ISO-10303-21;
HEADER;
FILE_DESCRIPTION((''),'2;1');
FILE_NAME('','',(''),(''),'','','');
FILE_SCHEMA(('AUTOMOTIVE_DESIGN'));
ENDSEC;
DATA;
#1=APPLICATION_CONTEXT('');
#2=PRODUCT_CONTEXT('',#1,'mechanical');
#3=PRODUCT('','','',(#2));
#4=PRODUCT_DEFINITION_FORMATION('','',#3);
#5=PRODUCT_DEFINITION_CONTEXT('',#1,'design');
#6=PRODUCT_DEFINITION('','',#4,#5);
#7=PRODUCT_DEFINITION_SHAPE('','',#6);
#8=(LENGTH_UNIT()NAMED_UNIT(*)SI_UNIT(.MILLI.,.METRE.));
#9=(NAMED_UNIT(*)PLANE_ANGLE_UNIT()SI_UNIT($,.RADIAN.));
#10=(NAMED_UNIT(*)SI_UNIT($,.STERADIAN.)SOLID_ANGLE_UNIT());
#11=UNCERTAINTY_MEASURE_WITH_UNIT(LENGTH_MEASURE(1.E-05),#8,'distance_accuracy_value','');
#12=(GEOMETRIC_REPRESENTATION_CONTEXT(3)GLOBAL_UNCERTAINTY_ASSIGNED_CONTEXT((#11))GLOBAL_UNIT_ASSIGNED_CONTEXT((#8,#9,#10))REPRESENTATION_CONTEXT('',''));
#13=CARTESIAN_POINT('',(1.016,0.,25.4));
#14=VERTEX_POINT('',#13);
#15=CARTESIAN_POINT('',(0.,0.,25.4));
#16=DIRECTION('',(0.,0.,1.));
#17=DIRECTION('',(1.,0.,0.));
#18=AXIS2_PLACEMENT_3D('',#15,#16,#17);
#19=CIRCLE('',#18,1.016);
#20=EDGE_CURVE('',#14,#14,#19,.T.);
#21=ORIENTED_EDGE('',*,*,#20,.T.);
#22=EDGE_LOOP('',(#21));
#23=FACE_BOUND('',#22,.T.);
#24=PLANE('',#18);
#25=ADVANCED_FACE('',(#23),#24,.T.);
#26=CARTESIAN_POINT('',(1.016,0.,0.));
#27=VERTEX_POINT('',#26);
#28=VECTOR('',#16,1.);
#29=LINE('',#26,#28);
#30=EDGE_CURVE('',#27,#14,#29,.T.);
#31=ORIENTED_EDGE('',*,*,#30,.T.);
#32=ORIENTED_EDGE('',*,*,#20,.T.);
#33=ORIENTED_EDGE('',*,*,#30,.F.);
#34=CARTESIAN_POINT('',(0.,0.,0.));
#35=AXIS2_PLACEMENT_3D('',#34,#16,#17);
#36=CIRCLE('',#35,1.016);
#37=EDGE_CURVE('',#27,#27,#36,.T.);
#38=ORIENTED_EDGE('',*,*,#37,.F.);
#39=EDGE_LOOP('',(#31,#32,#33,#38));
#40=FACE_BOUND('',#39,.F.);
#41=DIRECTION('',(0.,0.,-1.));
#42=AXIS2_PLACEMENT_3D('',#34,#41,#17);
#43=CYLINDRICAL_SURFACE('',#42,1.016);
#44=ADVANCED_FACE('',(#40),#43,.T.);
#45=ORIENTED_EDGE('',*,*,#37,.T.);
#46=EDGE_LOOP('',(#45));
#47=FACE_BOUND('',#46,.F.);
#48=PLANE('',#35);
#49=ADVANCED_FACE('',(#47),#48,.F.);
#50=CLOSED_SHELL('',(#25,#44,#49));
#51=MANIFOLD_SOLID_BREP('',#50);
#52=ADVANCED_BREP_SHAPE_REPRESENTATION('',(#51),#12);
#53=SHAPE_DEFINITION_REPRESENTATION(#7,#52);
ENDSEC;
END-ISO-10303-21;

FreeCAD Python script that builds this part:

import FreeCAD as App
import Part
import Sketcher

V = App.Vector
Q = App.Units.Quantity

doc = App.newDocument("Part")
body = doc.addObject("PartDesign::Body", "Body")

# Sketch on XY plane
sketch1 = body.newObject("Sketcher::SketchObject", "Sketch")
sketch1.AttachmentSupport = (doc.getObject("XY_Plane"), [""])
sketch1.MapMode = "FlatFace"
sketch1.addGeometry(Part.Circle(V(0, 0, 0), V(0, 0, 1), 1), False)
sketch1.addConstraint([
    Sketcher.Constraint("Coincident", 0, 3, -1, 1),
    Sketcher.Constraint("Diameter", 0, Q("0.08 in")),
])
pad1 = body.newObject("PartDesign::Pad", "Pad")
pad1.Profile = sketch1
pad1.Length = Q("1 in")

doc.recompute()
